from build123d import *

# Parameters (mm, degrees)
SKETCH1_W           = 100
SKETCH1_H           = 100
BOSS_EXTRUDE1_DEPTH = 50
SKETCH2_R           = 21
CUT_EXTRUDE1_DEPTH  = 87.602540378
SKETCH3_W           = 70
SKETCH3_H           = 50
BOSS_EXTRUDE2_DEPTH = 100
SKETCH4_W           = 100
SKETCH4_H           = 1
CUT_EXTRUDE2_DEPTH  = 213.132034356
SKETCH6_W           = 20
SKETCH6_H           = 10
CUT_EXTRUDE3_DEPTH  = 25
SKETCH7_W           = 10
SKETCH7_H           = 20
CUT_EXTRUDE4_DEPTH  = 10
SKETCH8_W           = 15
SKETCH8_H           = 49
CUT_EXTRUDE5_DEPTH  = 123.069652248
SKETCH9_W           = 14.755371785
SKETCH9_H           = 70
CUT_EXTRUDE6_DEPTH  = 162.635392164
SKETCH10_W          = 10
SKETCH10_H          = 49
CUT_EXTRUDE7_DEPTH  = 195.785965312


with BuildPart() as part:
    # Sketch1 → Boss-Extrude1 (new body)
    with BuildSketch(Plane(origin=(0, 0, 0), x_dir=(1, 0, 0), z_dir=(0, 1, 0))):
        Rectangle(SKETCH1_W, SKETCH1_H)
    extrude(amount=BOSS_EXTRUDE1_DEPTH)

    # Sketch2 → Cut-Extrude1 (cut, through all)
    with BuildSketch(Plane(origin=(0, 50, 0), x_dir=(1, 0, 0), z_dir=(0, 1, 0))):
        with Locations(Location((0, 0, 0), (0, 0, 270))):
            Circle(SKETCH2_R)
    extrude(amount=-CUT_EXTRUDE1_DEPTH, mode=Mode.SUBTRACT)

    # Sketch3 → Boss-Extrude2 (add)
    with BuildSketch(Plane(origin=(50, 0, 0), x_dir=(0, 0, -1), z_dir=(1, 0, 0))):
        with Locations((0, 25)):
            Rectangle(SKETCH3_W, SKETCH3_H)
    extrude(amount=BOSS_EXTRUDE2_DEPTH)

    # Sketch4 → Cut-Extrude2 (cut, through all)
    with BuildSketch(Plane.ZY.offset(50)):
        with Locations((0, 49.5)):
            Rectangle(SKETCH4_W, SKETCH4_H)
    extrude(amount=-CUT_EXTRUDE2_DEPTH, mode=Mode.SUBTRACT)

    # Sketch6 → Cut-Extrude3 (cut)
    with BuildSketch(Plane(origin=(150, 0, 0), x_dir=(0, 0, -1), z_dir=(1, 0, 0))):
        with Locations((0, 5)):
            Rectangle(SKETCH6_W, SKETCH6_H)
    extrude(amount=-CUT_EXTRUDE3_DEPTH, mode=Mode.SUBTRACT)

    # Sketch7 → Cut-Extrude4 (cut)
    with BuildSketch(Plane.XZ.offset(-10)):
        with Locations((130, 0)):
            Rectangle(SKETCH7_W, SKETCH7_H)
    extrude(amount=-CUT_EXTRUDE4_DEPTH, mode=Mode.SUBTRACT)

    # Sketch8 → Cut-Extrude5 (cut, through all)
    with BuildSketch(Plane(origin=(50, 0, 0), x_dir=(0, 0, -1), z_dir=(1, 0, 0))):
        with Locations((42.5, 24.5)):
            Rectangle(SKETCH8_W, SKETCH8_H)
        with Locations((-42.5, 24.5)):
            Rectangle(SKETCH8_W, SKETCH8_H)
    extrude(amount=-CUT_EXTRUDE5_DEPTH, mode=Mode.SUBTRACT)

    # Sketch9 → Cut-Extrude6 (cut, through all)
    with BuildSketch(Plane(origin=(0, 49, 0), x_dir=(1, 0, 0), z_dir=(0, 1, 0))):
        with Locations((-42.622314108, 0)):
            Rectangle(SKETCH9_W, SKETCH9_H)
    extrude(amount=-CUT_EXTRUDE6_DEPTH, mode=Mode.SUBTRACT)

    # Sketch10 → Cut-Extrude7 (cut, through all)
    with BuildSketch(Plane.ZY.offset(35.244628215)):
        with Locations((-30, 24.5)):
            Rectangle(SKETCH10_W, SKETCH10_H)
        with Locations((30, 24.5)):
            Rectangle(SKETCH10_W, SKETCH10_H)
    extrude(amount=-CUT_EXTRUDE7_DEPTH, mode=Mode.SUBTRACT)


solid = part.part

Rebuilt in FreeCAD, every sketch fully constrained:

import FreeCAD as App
import Part
import Sketcher

doc = App.newDocument("Part")
body = doc.addObject("PartDesign::Body", "Body")

# Sketch on XZ plane
sketch1 = doc.addObject("Sketcher::SketchObject", "Sketch")
body.addObject(sketch1)
sketch1.AttachmentSupport = (doc.XZ_Plane, [""])
sketch1.MapMode = "FlatFace"
sketch1.addGeometry([
    Part.LineSegment(App.Vector(-50, -50, 0), App.Vector(-50, 50, 0)),
    Part.LineSegment(App.Vector(-50, 50, 0), App.Vector(50, 50, 0)),
    Part.LineSegment(App.Vector(50, 50, 0), App.Vector(50, -50, 0)),
    Part.LineSegment(App.Vector(50, -50, 0), App.Vector(-50, -50, 0)),
], False)
sketch1.addConstraint([
    Sketcher.Constraint("Coincident", 0, 2, 1, 1),
    Sketcher.Constraint("Coincident", 1, 2, 2, 1),
    Sketcher.Constraint("Coincident", 2, 2, 3, 1),
    Sketcher.Constraint("Coincident", 3, 2, 0, 1),
    Sketcher.Constraint("Vertical", 0),
    Sketcher.Constraint("Horizontal", 1),
    Sketcher.Constraint("Vertical", 2),
    Sketcher.Constraint("Horizontal", 3),
    Sketcher.Constraint("Symmetric", 0, 2, 2, 2, -1, 1),
    Sketcher.Constraint("Equal", 3, 0),
    Sketcher.Constraint("DistanceX", 1, 1, 1, 2, 100.0),
])
pad1 = doc.addObject("PartDesign::Pad", "Pad")
body.addObject(pad1)
pad1.Profile = sketch1
pad1.Length = 50
pad1.Reversed = True

# Sketch on XZ plane
sketch2 = doc.addObject("Sketcher::SketchObject", "Sketch001")
body.addObject(sketch2)
sketch2.AttachmentSupport = (doc.XZ_Plane, [""])
sketch2.MapMode = "FlatFace"
sketch2.AttachmentOffset = App.Placement(App.Vector(0, 0, -50), App.Rotation())
sketch2.addGeometry(Part.Circle(App.Vector(0, 0, 0), App.Vector(0, 0, 1), 21), False)
sketch2.addConstraint([
    Sketcher.Constraint("Coincident", 0, 3, -1, 1),
    Sketcher.Constraint("Diameter", 0, 42.0),
])
pocket1 = doc.addObject("PartDesign::Pocket", "Pocket")
body.addObject(pocket1)
pocket1.Profile = sketch2
pocket1.Type = "ThroughAll"
pocket1.Reversed = True

# Sketch on YZ plane
sketch3 = doc.addObject("Sketcher::SketchObject", "Sketch002")
body.addObject(sketch3)
sketch3.AttachmentSupport = (doc.YZ_Plane, [""])
sketch3.MapMode = "FlatFace"
sketch3.AttachmentOffset = App.Placement(App.Vector(0, 0, 50), App.Rotation())
sketch3.addGeometry([
    Part.LineSegment(App.Vector(50, 35, 0), App.Vector(0, 35, 0)),
    Part.LineSegment(App.Vector(0, 35, 0), App.Vector(0, -35, 0)),
    Part.LineSegment(App.Vector(0, -35, 0), App.Vector(50, -35, 0)),
    Part.LineSegment(App.Vector(50, -35, 0), App.Vector(50, 35, 0)),
], False)
sketch3.addConstraint([
    Sketcher.Constraint("Coincident", 0, 2, 1, 1),
    Sketcher.Constraint("Coincident", 1, 2, 2, 1),
    Sketcher.Constraint("Coincident", 2, 2, 3, 1),
    Sketcher.Constraint("Coincident", 3, 2, 0, 1),
    Sketcher.Constraint("Horizontal", 0),
    Sketcher.Constraint("Vertical", 1),
    Sketcher.Constraint("Horizontal", 2),
    Sketcher.Constraint("Vertical", 3),
    Sketcher.Constraint("Symmetric", 0, 2, 1, 2, -1, 1),
    Sketcher.Constraint("DistanceX", 0, 2, 0, 1, 50.0),
    Sketcher.Constraint("DistanceY", 1, 2, 1, 1, 70.0),
])
pad2 = doc.addObject("PartDesign::Pad", "Pad001")
body.addObject(pad2)
pad2.Profile = sketch3
pad2.Length = 100

# Sketch on YZ plane
sketch4 = doc.addObject("Sketcher::SketchObject", "Sketch003")
body.addObject(sketch4)
sketch4.AttachmentSupport = (doc.YZ_Plane, [""])
sketch4.MapMode = "FlatFace"
sketch4.AttachmentOffset = App.Placement(App.Vector(0, 0, -50), App.Rotation())
sketch4.addGeometry([
    Part.LineSegment(App.Vector(50, -50, 0), App.Vector(49, -50, 0)),
    Part.LineSegment(App.Vector(49, -50, 0), App.Vector(49, 50, 0)),
    Part.LineSegment(App.Vector(49, 50, 0), App.Vector(50, 50, 0)),
    Part.LineSegment(App.Vector(50, 50, 0), App.Vector(50, -50, 0)),
], False)
sketch4.addConstraint([
    Sketcher.Constraint("Coincident", 0, 2, 1, 1),
    Sketcher.Constraint("Coincident", 1, 2, 2, 1),
    Sketcher.Constraint("Coincident", 2, 2, 3, 1),
    Sketcher.Constraint("Coincident", 3, 2, 0, 1),
    Sketcher.Constraint("Horizontal", 0),
    Sketcher.Constraint("Vertical", 1),
    Sketcher.Constraint("Horizontal", 2),
    Sketcher.Constraint("Vertical", 3),
    Sketcher.Constraint("DistanceX", 0, 2, 0, 1, 1.0),
    Sketcher.Constraint("DistanceY", 1, 1, 1, 2, 100.0),
    Sketcher.Constraint("DistanceX", -1, 1, 0, 2, 49.0),
    Sketcher.Constraint("DistanceY", 0, 2, -1, 1, 50.0),
])
pocket2 = doc.addObject("PartDesign::Pocket", "Pocket001")
body.addObject(pocket2)
pocket2.Profile = sketch4
pocket2.Type = "ThroughAll"
pocket2.Reversed = True

# Sketch on YZ plane
sketch5 = doc.addObject("Sketcher::SketchObject", "Sketch004")
body.addObject(sketch5)
sketch5.AttachmentSupport = (doc.YZ_Plane, [""])
sketch5.MapMode = "FlatFace"
sketch5.AttachmentOffset = App.Placement(App.Vector(0, 0, 150), App.Rotation())
sketch5.addGeometry([
    Part.LineSegment(App.Vector(10, 10, 0), App.Vector(0, 10, 0)),
    Part.LineSegment(App.Vector(0, 10, 0), App.Vector(0, -10, 0)),
    Part.LineSegment(App.Vector(0, -10, 0), App.Vector(10, -10, 0)),
    Part.LineSegment(App.Vector(10, -10, 0), App.Vector(10, 10, 0)),
], False)
sketch5.addConstraint([
    Sketcher.Constraint("Coincident", 0, 2, 1, 1),
    Sketcher.Constraint("Coincident", 1, 2, 2, 1),
    Sketcher.Constraint("Coincident", 2, 2, 3, 1),
    Sketcher.Constraint("Coincident", 3, 2, 0, 1),
    Sketcher.Constraint("Horizontal", 0),
    Sketcher.Constraint("Vertical", 1),
    Sketcher.Constraint("Horizontal", 2),
    Sketcher.Constraint("Vertical", 3),
    Sketcher.Constraint("Symmetric", 0, 2, 1, 2, -1, 1),
    Sketcher.Constraint("DistanceX", 0, 2, 0, 1, 10.0),
    Sketcher.Constraint("DistanceY", 1, 2, 1, 1, 20.0),
])
pocket3 = doc.addObject("PartDesign::Pocket", "Pocket002")
body.addObject(pocket3)
pocket3.Profile = sketch5
pocket3.Length = 25

# Sketch on XZ plane
sketch6 = doc.addObject("Sketcher::SketchObject", "Sketch005")
body.addObject(sketch6)
sketch6.AttachmentSupport = (doc.XZ_Plane, [""])
sketch6.MapMode = "FlatFace"
sketch6.AttachmentOffset = App.Placement(App.Vector(0, 0, -10), App.Rotation())
sketch6.addGeometry([
    Part.LineSegment(App.Vector(125, 10, 0), App.Vector(125, -10, 0)),
    Part.LineSegment(App.Vector(125, -10, 0), App.Vector(135, -10, 0)),
    Part.LineSegment(App.Vector(135, -10, 0), App.Vector(135, 10, 0)),
    Part.LineSegment(App.Vector(135, 10, 0), App.Vector(125, 10, 0)),
], False)
sketch6.addConstraint([
    Sketcher.Constraint("Coincident", 0, 2, 1, 1),
    Sketcher.Constraint("Coincident", 1, 2, 2, 1),
    Sketcher.Constraint("Coincident", 2, 2, 3, 1),
    Sketcher.Constraint("Coincident", 3, 2, 0, 1),
    Sketcher.Constraint("Vertical", 0),
    Sketcher.Constraint("Horizontal", 1),
    Sketcher.Constraint("Vertical", 2),
    Sketcher.Constraint("Horizontal", 3),
    Sketcher.Constraint("DistanceX", 1, 1, 1, 2, 10.0),
    Sketcher.Constraint("DistanceY", 0, 2, 0, 1, 20.0),
    Sketcher.Constraint("DistanceX", -1, 1, 0, 2, 125.0),
    Sketcher.Constraint("DistanceY", 0, 2, -1, 1, 10.0),
])
pocket4 = doc.addObject("PartDesign::Pocket", "Pocket003")
body.addObject(pocket4)
pocket4.Profile = sketch6
pocket4.Length = 10

# Sketch on YZ plane
sketch7 = doc.addObject("Sketcher::SketchObject", "Sketch006")
body.addObject(sketch7)
sketch7.AttachmentSupport = (doc.YZ_Plane, [""])
sketch7.MapMode = "FlatFace"
sketch7.AttachmentOffset = App.Placement(App.Vector(0, 0, 50), App.Rotation())
sketch7.addGeometry([
    Part.LineSegment(App.Vector(49, -35, 0), App.Vector(0, -35, 0)),  # 0
    Part.LineSegment(App.Vector(0, -35, 0), App.Vector(0, -50, 0)),  # 1
    Part.LineSegment(App.Vector(0, -50, 0), App.Vector(49, -50, 0)),  # 2
    Part.LineSegment(App.Vector(49, -50, 0), App.Vector(49, -35, 0)),  # 3
    Part.LineSegment(App.Vector(49, 50, 0), App.Vector(0, 50, 0)),  # 4
    Part.LineSegment(App.Vector(0, 50, 0), App.Vector(0, 35, 0)),  # 5
    Part.LineSegment(App.Vector(0, 35, 0), App.Vector(49, 35, 0)),  # 6
    Part.LineSegment(App.Vector(49, 35, 0), App.Vector(49, 50, 0)),  # 7
], False)
sketch7.addConstraint([
    Sketcher.Constraint("Coincident", 0, 2, 1, 1),
    Sketcher.Constraint("Coincident", 1, 2, 2, 1),
    Sketcher.Constraint("Coincident", 2, 2, 3, 1),
    Sketcher.Constraint("Coincident", 3, 2, 0, 1),
    Sketcher.Constraint("Coincident", 4, 2, 5, 1),
    Sketcher.Constraint("Coincident", 5, 2, 6, 1),
    Sketcher.Constraint("Coincident", 6, 2, 7, 1),
    Sketcher.Constraint("Coincident", 7, 2, 4, 1),
    Sketcher.Constraint("Horizontal", 0),
    Sketcher.Constraint("Vertical", 1),
    Sketcher.Constraint("Horizontal", 2),
    Sketcher.Constraint("Vertical", 3),
    Sketcher.Constraint("Horizontal", 4),
    Sketcher.Constraint("Vertical", 5),
    Sketcher.Constraint("Horizontal", 6),
    Sketcher.Constraint("Vertical", 7),
    Sketcher.Constraint("Symmetric", 1, 2, 4, 2, -1, 1),
    Sketcher.Constraint("Symmetric", 0, 2, 5, 2, -1),
    Sketcher.Constraint("Vertical", 3, 2, 6, 2),
    Sketcher.Constraint("DistanceX", 0, 2, 0, 1, 49.0),
    Sketcher.Constraint("DistanceY", 1, 2, 1, 1, 15.0),
    Sketcher.Constraint("DistanceY", 0, 2, -1, 1, 35.0),
])
pocket5 = doc.addObject("PartDesign::Pocket", "Pocket004")
body.addObject(pocket5)
pocket5.Profile = sketch7
pocket5.Type = "ThroughAll"

# Sketch on XZ plane
sketch8 = doc.addObject("Sketcher::SketchObject", "Sketch007")
body.addObject(sketch8)
sketch8.AttachmentSupport = (doc.XZ_Plane, [""])
sketch8.MapMode = "FlatFace"
sketch8.AttachmentOffset = App.Placement(App.Vector(0, 0, -49), App.Rotation())
sketch8.addGeometry([
    Part.LineSegment(App.Vector(-50, -35, 0), App.Vector(-50, 35, 0)),
    Part.LineSegment(App.Vector(-50, 35, 0), App.Vector(-35.244628, 35, 0)),
    Part.LineSegment(App.Vector(-35.244628, 35, 0), App.Vector(-35.244628, -35, 0)),
    Part.LineSegment(App.Vector(-35.244628, -35, 0), App.Vector(-50, -35, 0)),
], False)
sketch8.addConstraint([
    Sketcher.Constraint("Coincident", 0, 2, 1, 1),
    Sketcher.Constraint("Coincident", 1, 2, 2, 1),
    Sketcher.Constraint("Coincident", 2, 2, 3, 1),
    Sketcher.Constraint("Coincident", 3, 2, 0, 1),
    Sketcher.Constraint("Vertical", 0),
    Sketcher.Constraint("Horizontal", 1),
    Sketcher.Constraint("Vertical", 2),
    Sketcher.Constraint("Horizontal", 3),
    Sketcher.Constraint("DistanceY", 0, 1, 0, 2, 70.0),
    Sketcher.Constraint("DistanceX", 0, 2, -1, 1, 50.0),
    Sketcher.Constraint("DistanceY", -1, 1, 0, 2, 35.0),
    Sketcher.Constraint("DistanceX", 1, 1, 1, 2, 14.755372),
])
pocket6 = doc.addObject("PartDesign::Pocket", "Pocket005")
body.addObject(pocket6)
pocket6.Profile = sketch8
pocket6.Type = "ThroughAll"
pocket6.Reversed = True

# Sketch on YZ plane
sketch9 = doc.addObject("Sketcher::SketchObject", "Sketch008")
body.addObject(sketch9)
sketch9.AttachmentSupport = (doc.YZ_Plane, [""])
sketch9.MapMode = "FlatFace"
sketch9.AttachmentOffset = App.Placement(App.Vector(0, 0, -35.244628), App.Rotation())
sketch9.addGeometry([
    Part.LineSegment(App.Vector(49, -35, 0), App.Vector(0, -35, 0)),  # 0
    Part.LineSegment(App.Vector(0, -35, 0), App.Vector(0, -25, 0)),  # 1
    Part.LineSegment(App.Vector(0, -25, 0), App.Vector(49, -25, 0)),  # 2
    Part.LineSegment(App.Vector(49, -25, 0), App.Vector(49, -35, 0)),  # 3
    Part.LineSegment(App.Vector(49, 25, 0), App.Vector(0, 25, 0)),  # 4
    Part.LineSegment(App.Vector(0, 25, 0), App.Vector(0, 35, 0)),  # 5
    Part.LineSegment(App.Vector(0, 35, 0), App.Vector(49, 35, 0)),  # 6
    Part.LineSegment(App.Vector(49, 35, 0), App.Vector(49, 25, 0)),  # 7
], False)
sketch9.addConstraint([
    Sketcher.Constraint("Coincident", 0, 2, 1, 1),
    Sketcher.Constraint("Coincident", 1, 2, 2, 1),
    Sketcher.Constraint("Coincident", 2, 2, 3, 1),
    Sketcher.Constraint("Coincident", 3, 2, 0, 1),
    Sketcher.Constraint("Coincident", 4, 2, 5, 1),
    Sketcher.Constraint("Coincident", 5, 2, 6, 1),
    Sketcher.Constraint("Coincident", 6, 2, 7, 1),
    Sketcher.Constraint("Coincident", 7, 2, 4, 1),
    Sketcher.Constraint("Horizontal", 0),
    Sketcher.Constraint("Vertical", 1),
    Sketcher.Constraint("Horizontal", 2),
    Sketcher.Constraint("Vertical", 3),
    Sketcher.Constraint("Horizontal", 4),
    Sketcher.Constraint("Vertical", 5),
    Sketcher.Constraint("Horizontal", 6),
    Sketcher.Constraint("Vertical", 7),
    Sketcher.Constraint("Symmetric", 1, 2, 4, 2, -1, 1),
    Sketcher.Constraint("Symmetric", 0, 2, 5, 2, -1),
    Sketcher.Constraint("Vertical", 3, 2, 6, 2),
    Sketcher.Constraint("DistanceX", 0, 2, 0, 1, 49.0),
    Sketcher.Constraint("DistanceY", 1, 1, 1, 2, 10.0),
    Sketcher.Constraint("DistanceY", 0, 2, -1, 1, 35.0),
])
pocket7 = doc.addObject("PartDesign::Pocket", "Pocket006")
body.addObject(pocket7)
pocket7.Profile = sketch9
pocket7.Type = "ThroughAll"
pocket7.Reversed = True

doc.recompute()
